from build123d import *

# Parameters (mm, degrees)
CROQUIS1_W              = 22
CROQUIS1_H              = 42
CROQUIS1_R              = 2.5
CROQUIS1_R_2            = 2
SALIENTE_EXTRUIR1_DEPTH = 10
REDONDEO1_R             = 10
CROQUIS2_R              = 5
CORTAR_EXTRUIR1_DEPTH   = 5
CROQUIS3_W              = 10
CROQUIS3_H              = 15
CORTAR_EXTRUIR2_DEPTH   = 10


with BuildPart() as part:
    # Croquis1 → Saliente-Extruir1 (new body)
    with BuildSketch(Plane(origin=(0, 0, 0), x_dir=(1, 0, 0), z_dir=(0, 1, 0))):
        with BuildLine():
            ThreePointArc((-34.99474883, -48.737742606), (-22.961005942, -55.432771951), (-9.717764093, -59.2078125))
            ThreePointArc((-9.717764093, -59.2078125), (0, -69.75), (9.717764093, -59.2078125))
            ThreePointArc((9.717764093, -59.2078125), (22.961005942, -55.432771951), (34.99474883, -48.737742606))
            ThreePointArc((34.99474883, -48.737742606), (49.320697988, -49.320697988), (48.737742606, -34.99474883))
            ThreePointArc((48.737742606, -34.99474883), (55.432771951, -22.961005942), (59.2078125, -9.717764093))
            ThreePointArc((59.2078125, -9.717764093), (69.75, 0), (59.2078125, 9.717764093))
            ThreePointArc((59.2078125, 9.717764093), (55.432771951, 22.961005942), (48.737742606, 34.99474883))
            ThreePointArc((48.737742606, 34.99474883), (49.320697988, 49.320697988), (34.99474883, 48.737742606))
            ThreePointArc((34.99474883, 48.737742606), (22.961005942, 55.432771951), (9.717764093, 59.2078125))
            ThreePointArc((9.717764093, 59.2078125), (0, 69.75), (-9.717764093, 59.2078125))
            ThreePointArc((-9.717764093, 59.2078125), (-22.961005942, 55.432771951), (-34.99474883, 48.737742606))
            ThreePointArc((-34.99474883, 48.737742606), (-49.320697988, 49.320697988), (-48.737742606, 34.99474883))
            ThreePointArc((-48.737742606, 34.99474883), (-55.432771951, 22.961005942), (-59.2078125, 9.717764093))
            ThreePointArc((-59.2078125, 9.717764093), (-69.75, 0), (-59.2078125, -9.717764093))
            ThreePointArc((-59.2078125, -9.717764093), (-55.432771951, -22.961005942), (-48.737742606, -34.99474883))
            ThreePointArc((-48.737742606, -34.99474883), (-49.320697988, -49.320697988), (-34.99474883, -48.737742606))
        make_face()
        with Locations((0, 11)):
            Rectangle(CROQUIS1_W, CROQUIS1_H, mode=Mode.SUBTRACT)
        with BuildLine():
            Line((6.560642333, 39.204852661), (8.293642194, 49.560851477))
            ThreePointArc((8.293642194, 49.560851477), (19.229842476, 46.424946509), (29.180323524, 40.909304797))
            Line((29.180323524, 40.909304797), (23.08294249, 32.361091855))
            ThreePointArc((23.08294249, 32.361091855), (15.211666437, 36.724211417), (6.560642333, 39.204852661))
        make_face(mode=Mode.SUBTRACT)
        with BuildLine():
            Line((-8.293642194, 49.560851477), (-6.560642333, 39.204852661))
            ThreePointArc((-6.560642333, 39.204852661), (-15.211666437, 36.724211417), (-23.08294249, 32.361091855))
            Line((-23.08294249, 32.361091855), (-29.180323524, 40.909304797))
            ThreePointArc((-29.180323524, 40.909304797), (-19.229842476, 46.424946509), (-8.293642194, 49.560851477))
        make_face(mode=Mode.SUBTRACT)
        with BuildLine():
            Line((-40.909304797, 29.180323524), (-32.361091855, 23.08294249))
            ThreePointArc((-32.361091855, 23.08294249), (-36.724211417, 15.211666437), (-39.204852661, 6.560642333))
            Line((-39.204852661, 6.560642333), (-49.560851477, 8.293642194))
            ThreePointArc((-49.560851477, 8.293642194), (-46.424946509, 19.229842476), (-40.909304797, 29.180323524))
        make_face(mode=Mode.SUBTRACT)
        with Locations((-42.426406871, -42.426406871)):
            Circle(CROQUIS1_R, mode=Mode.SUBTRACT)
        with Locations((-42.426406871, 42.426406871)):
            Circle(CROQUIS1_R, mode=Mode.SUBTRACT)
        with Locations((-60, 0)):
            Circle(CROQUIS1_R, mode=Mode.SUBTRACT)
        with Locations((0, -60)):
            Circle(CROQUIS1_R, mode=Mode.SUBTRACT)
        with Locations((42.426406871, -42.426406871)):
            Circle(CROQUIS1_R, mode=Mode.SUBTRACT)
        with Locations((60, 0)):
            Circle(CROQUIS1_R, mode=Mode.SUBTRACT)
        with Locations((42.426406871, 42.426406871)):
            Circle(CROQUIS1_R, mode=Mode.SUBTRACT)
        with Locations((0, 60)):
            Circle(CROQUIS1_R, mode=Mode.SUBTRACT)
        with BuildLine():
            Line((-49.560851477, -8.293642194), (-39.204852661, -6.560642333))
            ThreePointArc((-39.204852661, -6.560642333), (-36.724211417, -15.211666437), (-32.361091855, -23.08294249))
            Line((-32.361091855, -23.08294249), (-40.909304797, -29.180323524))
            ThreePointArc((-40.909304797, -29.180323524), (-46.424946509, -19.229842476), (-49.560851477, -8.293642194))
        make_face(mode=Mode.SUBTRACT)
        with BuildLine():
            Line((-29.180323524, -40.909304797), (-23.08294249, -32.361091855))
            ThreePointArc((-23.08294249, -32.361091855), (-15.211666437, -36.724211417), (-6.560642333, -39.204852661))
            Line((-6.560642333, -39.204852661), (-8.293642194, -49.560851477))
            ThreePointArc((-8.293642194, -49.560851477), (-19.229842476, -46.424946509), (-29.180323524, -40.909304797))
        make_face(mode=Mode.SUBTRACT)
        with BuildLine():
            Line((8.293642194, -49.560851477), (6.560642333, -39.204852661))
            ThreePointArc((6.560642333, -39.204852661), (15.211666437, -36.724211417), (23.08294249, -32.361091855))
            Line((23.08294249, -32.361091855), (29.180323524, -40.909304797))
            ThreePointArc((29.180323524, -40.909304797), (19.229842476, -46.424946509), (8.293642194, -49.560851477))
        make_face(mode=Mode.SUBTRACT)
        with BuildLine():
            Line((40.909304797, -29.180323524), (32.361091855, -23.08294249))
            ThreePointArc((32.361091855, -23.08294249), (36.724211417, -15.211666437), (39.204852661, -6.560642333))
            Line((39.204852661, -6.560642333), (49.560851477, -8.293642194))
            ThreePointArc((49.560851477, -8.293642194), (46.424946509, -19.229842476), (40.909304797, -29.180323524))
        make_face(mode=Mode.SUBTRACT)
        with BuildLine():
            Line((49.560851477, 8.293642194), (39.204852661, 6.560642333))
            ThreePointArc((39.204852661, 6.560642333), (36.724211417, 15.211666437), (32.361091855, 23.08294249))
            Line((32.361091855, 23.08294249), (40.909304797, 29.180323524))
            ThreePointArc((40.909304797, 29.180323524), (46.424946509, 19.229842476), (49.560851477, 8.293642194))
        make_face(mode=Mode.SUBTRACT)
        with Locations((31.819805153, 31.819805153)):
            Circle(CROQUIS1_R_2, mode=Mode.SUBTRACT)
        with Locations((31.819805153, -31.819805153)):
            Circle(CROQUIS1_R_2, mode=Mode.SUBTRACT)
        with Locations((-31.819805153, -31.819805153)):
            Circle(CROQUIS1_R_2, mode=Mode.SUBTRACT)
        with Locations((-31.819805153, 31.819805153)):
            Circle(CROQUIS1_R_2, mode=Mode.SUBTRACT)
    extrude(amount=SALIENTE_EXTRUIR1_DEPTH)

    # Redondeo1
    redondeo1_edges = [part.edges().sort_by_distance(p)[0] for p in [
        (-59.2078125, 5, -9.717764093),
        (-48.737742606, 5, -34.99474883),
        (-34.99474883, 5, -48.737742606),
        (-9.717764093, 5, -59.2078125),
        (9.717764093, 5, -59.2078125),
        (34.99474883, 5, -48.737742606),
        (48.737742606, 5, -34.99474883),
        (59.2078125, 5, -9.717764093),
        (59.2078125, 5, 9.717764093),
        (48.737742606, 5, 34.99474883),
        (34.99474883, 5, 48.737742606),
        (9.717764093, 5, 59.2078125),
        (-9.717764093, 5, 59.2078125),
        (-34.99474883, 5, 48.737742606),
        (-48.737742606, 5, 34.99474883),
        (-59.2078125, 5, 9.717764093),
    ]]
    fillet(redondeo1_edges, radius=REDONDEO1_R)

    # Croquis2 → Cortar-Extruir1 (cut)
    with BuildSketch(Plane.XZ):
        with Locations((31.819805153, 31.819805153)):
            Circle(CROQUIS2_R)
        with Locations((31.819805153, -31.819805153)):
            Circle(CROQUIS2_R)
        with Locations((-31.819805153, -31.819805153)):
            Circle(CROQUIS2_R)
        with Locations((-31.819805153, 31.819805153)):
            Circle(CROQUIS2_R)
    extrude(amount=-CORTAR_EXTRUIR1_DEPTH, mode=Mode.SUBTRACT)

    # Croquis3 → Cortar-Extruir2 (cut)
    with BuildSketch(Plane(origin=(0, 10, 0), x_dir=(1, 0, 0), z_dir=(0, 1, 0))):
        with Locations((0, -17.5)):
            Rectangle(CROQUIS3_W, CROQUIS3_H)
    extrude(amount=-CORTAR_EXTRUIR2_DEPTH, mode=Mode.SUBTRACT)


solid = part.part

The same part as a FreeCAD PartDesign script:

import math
import FreeCAD as App
import Part
import Sketcher
from FreeCAD import Vector
Q = App.Units.Quantity


def edges_at(feature, points):
    """Names of the edges that pass closest to the given points."""
    edges = feature.Shape.Edges
    near = lambda p: min(range(len(edges)), key=lambda i: edges[i].distToShape(Part.Vertex(*p))[0])
    return sorted({f"Edge{near(p) + 1}" for p in points})


def add_polygon(sketch, points):
    """Adds a closed chain of lines whose ends are joined by coincident constraints."""
    first, n = sketch.GeometryCount, len(points)
    for a, b in zip(points, points[1:] + points[:1]):
        sketch.addGeometry(Part.LineSegment(App.Vector(*a, 0), App.Vector(*b, 0)), False)
    for i in range(n):
        sketch.addConstraint(Sketcher.Constraint("Coincident", first + i, 2, first + (i + 1) % n, 1))

doc = App.newDocument("Part")
body = doc.addObject("PartDesign::Body", "Body")

# Sketch on XZ plane
sketch1 = doc.addObject("Sketcher::SketchObject", "Sketch")
body.addObject(sketch1)
sketch1.AttachmentSupport = (doc.XZ_Plane, [""])
sketch1.MapMode = "FlatFace"
sketch1.addGeometry(Part.ArcOfCircle(Part.Circle(Vector(0, 0, 0), Vector(0, 0, 1), 60), math.radians(99.320839), math.radians(125.679161)), False)  # 0
sketch1.addGeometry(Part.ArcOfCircle(Part.Circle(Vector(0, 60, 0), Vector(0, 0, 1), 9.75), math.radians(-4.660419), math.radians(184.660419)), False)  # 1
sketch1.addGeometry(Part.ArcOfCircle(Part.Circle(Vector(0, 0, 0), Vector(0, 0, 1), 60), math.radians(54.320839), math.radians(80.679161)), False)  # 2
sketch1.addGeometry(Part.ArcOfCircle(Part.Circle(Vector(42.426407, 42.426407, 0), Vector(0, 0, 1), 9.75), math.radians(-49.660419), math.radians(139.660419)), False)  # 3
sketch1.addGeometry(Part.ArcOfCircle(Part.Circle(Vector(0, 0, 0), Vector(0, 0, 1), 60), math.radians(9.320839), math.radians(35.679161)), False)  # 4
sketch1.addGeometry(Part.ArcOfCircle(Part.Circle(Vector(60, 0, 0), Vector(0, 0, 1), 9.75), math.radians(-94.660419), math.radians(94.660419)), False)  # 5
sketch1.addGeometry(Part.ArcOfCircle(Part.Circle(Vector(0, 0, 0), Vector(0, 0, 1), 60), math.radians(-35.679161), math.radians(-9.320839)), False)  # 6
sketch1.addGeometry(Part.ArcOfCircle(Part.Circle(Vector(42.426407, -42.426407, 0), Vector(0, 0, 1), 9.75), math.radians(-139.660419), math.radians(49.660419)), False)  # 7
sketch1.addGeometry(Part.ArcOfCircle(Part.Circle(Vector(0, 0, 0), Vector(0, 0, 1), 60), math.radians(-80.679161), math.radians(-54.320839)), False)  # 8
sketch1.addGeometry(Part.ArcOfCircle(Part.Circle(Vector(0, -60, 0), Vector(0, 0, 1), 9.75), math.radians(175.339581), math.radians(364.660419)), False)  # 9
sketch1.addGeometry(Part.ArcOfCircle(Part.Circle(Vector(0, 0, 0), Vector(0, 0, 1), 60), math.radians(-125.679161), math.radians(-99.320839)), False)  # 10
sketch1.addGeometry(Part.ArcOfCircle(Part.Circle(Vector(-42.426407, -42.426407, 0), Vector(0, 0, 1), 9.75), math.radians(130.339581), math.radians(319.660419)), False)  # 11
sketch1.addGeometry(Part.ArcOfCircle(Part.Circle(Vector(0, 0, 0), Vector(0, 0, 1), 60), math.radians(-170.679161), math.radians(-144.320839)), False)  # 12
sketch1.addGeometry(Part.ArcOfCircle(Part.Circle(Vector(-60, 0, 0), Vector(0, 0, 1), 9.75), math.radians(85.339581), math.radians(274.660419)), False)  # 13
sketch1.addGeometry(Part.ArcOfCircle(Part.Circle(Vector(0, 0, 0), Vector(0, 0, 1), 60), math.radians(144.320839), math.radians(170.679161)), False)  # 14
sketch1.addGeometry(Part.ArcOfCircle(Part.Circle(Vector(-42.426407, 42.426407, 0), Vector(0, 0, 1), 9.75), math.radians(40.339581), math.radians(229.660419)), False)  # 15
sketch1.addGeometry(Part.Circle(Vector(-42.426407, 42.426407, 0), Vector(0, 0, 1), 2.5), False)  # 16
sketch1.addGeometry(Part.Circle(Vector(-31.819805, 31.819805, 0), Vector(0, 0, 1), 2), False)  # 17
sketch1.addGeometry(Part.ArcOfCircle(Part.Circle(Vector(0, 0, 0), Vector(0, 0, 1), 50.25), math.radians(99.5), math.radians(125.5)), False)  # 18
sketch1.addGeometry(Part.LineSegment(Vector(-29.180324, 40.909305, 0), Vector(-23.082942, 32.361092, 0)), False)  # 19
sketch1.addGeometry(Part.ArcOfCircle(Part.Circle(Vector(0, 0, 0), Vector(0, 0, 1), 39.75), math.radians(99.5), math.radians(125.5)), False)  # 20
sketch1.addGeometry(Part.LineSegment(Vector(-6.560642, 39.204853, 0), Vector(-8.293642, 49.560851, 0)), False)  # 21
sketch1.addGeometry(Part.ArcOfCircle(Part.Circle(Vector(0, 0, 0), Vector(0, 0, 1), 50.25), math.radians(144.5), math.radians(170.5)), False)  # 22
sketch1.addGeometry(Part.LineSegment(Vector(-49.560851, 8.293642, 0), Vector(-39.204853, 6.560642, 0)), False)  # 23
sketch1.addGeometry(Part.ArcOfCircle(Part.Circle(Vector(0, 0, 0), Vector(0, 0, 1), 39.75), math.radians(144.5), math.radians(170.5)), False)  # 24
sketch1.addGeometry(Part.LineSegment(Vector(-32.361092, 23.082942, 0), Vector(-40.909305, 29.180324, 0)), False)  # 25
sketch1.addGeometry(Part.Circle(Vector(0, 60, 0), Vector(0, 0, 1), 2.5), False)  # 26
sketch1.addGeometry(Part.ArcOfCircle(Part.Circle(Vector(0, 0, 0), Vector(0, 0, 1), 50.25), math.radians(54.5), math.radians(80.5)), False)  # 27
sketch1.addGeometry(Part.LineSegment(Vector(8.293642, 49.560851, 0), Vector(6.560642, 39.204853, 0)), False)  # 28
sketch1.addGeometry(Part.ArcOfCircle(Part.Circle(Vector(0, 0, 0), Vector(0, 0, 1), 39.75), math.radians(54.5), math.radians(80.5)), False)  # 29
sketch1.addGeometry(Part.LineSegment(Vector(23.082942, 32.361092, 0), Vector(29.180324, 40.909305, 0)), False)  # 30
sketch1.addGeometry(Part.Circle(Vector(42.426407, 42.426407, 0), Vector(0, 0, 1), 2.5), False)  # 31
sketch1.addGeometry(Part.Circle(Vector(31.819805, 31.819805, 0), Vector(0, 0, 1), 2), False)  # 32
sketch1.addGeometry(Part.ArcOfCircle(Part.Circle(Vector(0, 0, 0), Vector(0, 0, 1), 50.25), math.radians(9.5), math.radians(35.5)), False)  # 33
sketch1.addGeometry(Part.LineSegment(Vector(40.909305, 29.180324, 0), Vector(32.361092, 23.082942, 0)), False)  # 34
sketch1.addGeometry(Part.ArcOfCircle(Part.Circle(Vector(0, 0, 0), Vector(0, 0, 1), 39.75), math.radians(9.5), math.radians(35.5)), False)  # 35
sketch1.addGeometry(Part.LineSegment(Vector(39.204853, 6.560642, 0), Vector(49.560851, 8.293642, 0)), False)  # 36
sketch1.addGeometry(Part.Circle(Vector(-60, 0, 0), Vector(0, 0, 1), 2.5), False)  # 37
sketch1.addGeometry(Part.ArcOfCircle(Part.Circle(Vector(0, 0, 0), Vector(0, 0, 1), 50.25), math.radians(-170.5), math.radians(-144.5)), False)  # 38
sketch1.addGeometry(Part.LineSegment(Vector(-40.909305, -29.180324, 0), Vector(-32.361092, -23.082942, 0)), False)  # 39
sketch1.addGeometry(Part.ArcOfCircle(Part.Circle(Vector(0, 0, 0), Vector(0, 0, 1), 39.75), math.radians(-170.5), math.radians(-144.5)), False)  # 40
sketch1.addGeometry(Part.LineSegment(Vector(-39.204853, -6.560642, 0), Vector(-49.560851, -8.293642, 0)), False)  # 41
sketch1.addGeometry(Part.Circle(Vector(-31.819805, -31.819805, 0), Vector(0, 0, 1), 2), False)  # 42
sketch1.addGeometry(Part.Circle(Vector(-42.426407, -42.426407, 0), Vector(0, 0, 1), 2.5), False)  # 43
sketch1.addGeometry(Part.ArcOfCircle(Part.Circle(Vector(0, 0, 0), Vector(0, 0, 1), 50.25), math.radians(-125.5), math.radians(-99.5)), False)  # 44
sketch1.addGeometry(Part.LineSegment(Vector(-8.293642, -49.560851, 0), Vector(-6.560642, -39.204853, 0)), False)  # 45
sketch1.addGeometry(Part.ArcOfCircle(Part.Circle(Vector(0, 0, 0), Vector(0, 0, 1), 39.75), math.radians(-125.5), math.radians(-99.5)), False)  # 46
sketch1.addGeometry(Part.LineSegment(Vector(-23.082942, -32.361092, 0), Vector(-29.180324, -40.909305, 0)), False)  # 47
add_polygon(sketch1, [(11, 10), (-11, 10), (-11, -32), (11, -32)])  # lines 48-51
sketch1.addGeometry(Part.Circle(Vector(60, 0, 0), Vector(0, 0, 1), 2.5), False)  # 52
sketch1.addGeometry(Part.ArcOfCircle(Part.Circle(Vector(0, 0, 0), Vector(0, 0, 1), 50.25), math.radians(-35.5), math.radians(-9.5)), False)  # 53
sketch1.addGeometry(Part.LineSegment(Vector(49.560851, -8.293642, 0), Vector(39.204853, -6.560642, 0)), False)  # 54
sketch1.addGeometry(Part.ArcOfCircle(Part.Circle(Vector(0, 0, 0), Vector(0, 0, 1), 39.75), math.radians(-35.5), math.radians(-9.5)), False)  # 55
sketch1.addGeometry(Part.LineSegment(Vector(32.361092, -23.082942, 0), Vector(40.909305, -29.180324, 0)), False)  # 56
sketch1.addGeometry(Part.ArcOfCircle(Part.Circle(Vector(0, 0, 0), Vector(0, 0, 1), 39.75), math.radians(-80.5), math.radians(-54.5)), False)  # 57
sketch1.addGeometry(Part.LineSegment(Vector(6.560642, -39.204853, 0), Vector(8.293642, -49.560851, 0)), False)  # 58
sketch1.addGeometry(Part.ArcOfCircle(Part.Circle(Vector(0, 0, 0), Vector(0, 0, 1), 50.25), math.radians(-80.5), math.radians(-54.5)), False)  # 59
sketch1.addGeometry(Part.LineSegment(Vector(29.180324, -40.909305, 0), Vector(23.082942, -32.361092, 0)), False)  # 60
sketch1.addGeometry(Part.Circle(Vector(0, -60, 0), Vector(0, 0, 1), 2.5), False)  # 61
sketch1.addGeometry(Part.Circle(Vector(31.819805, -31.819805, 0), Vector(0, 0, 1), 2), False)  # 62
sketch1.addGeometry(Part.Circle(Vector(42.426407, -42.426407, 0), Vector(0, 0, 1), 2.5), False)  # 63
sketch1.addConstraint([
    Sketcher.Constraint("Coincident", 0, 1, 1, 2),
    Sketcher.Constraint("Coincident", 1, 1, 2, 2),
    Sketcher.Constraint("Coincident", 2, 1, 3, 2),
    Sketcher.Constraint("Coincident", 3, 1, 4, 2),
    Sketcher.Constraint("Coincident", 4, 1, 5, 2),
    Sketcher.Constraint("Coincident", 5, 1, 6, 2),
    Sketcher.Constraint("Coincident", 6, 1, 7, 2),
    Sketcher.Constraint("Coincident", 7, 1, 8, 2),
    Sketcher.Constraint("Coincident", 8, 1, 9, 2),
    Sketcher.Constraint("Coincident", 9, 1, 10, 2),
    Sketcher.Constraint("Coincident", 10, 1, 11, 2),
    Sketcher.Constraint("Coincident", 11, 1, 12, 2),
    Sketcher.Constraint("Coincident", 12, 1, 13, 2),
    Sketcher.Constraint("Coincident", 13, 1, 14, 2),
    Sketcher.Constraint("Coincident", 14, 1, 15, 2),
    Sketcher.Constraint("Coincident", 15, 1, 0, 2),
    Sketcher.Constraint("Coincident", 18, 2, 19, 1),
    Sketcher.Constraint("Coincident", 19, 2, 20, 2),
    Sketcher.Constraint("Coincident", 20, 1, 21, 1),
    Sketcher.Constraint("Coincident", 21, 2, 18, 1),
    Sketcher.Constraint("Coincident", 22, 2, 23, 1),
    Sketcher.Constraint("Coincident", 23, 2, 24, 2),
    Sketcher.Constraint("Coincident", 24, 1, 25, 1),
    Sketcher.Constraint("Coincident", 25, 2, 22, 1),
    Sketcher.Constraint("Coincident", 27, 2, 28, 1),
    Sketcher.Constraint("Coincident", 28, 2, 29, 2),
    Sketcher.Constraint("Coincident", 29, 1, 30, 1),
    Sketcher.Constraint("Coincident", 30, 2, 27, 1),
    Sketcher.Constraint("Coincident", 33, 2, 34, 1),
    Sketcher.Constraint("Coincident", 34, 2, 35, 2),
    Sketcher.Constraint("Coincident", 35, 1, 36, 1),
    Sketcher.Constraint("Coincident", 36, 2, 33, 1),
    Sketcher.Constraint("Coincident", 38, 2, 39, 1),
    Sketcher.Constraint("Coincident", 39, 2, 40, 2),
    Sketcher.Constraint("Coincident", 40, 1, 41, 1),
    Sketcher.Constraint("Coincident", 41, 2, 38, 1),
    Sketcher.Constraint("Coincident", 44, 2, 45, 1),
    Sketcher.Constraint("Coincident", 45, 2, 46, 2),
    Sketcher.Constraint("Coincident", 46, 1, 47, 1),
    Sketcher.Constraint("Coincident", 47, 2, 44, 1),
    Sketcher.Constraint("Coincident", 53, 2, 54, 1),
    Sketcher.Constraint("Coincident", 54, 2, 55, 2),
    Sketcher.Constraint("Coincident", 55, 1, 56, 1),
    Sketcher.Constraint("Coincident", 56, 2, 53, 1),
    Sketcher.Constraint("Coincident", 57, 1, 58, 1),
    Sketcher.Constraint("Coincident", 58, 2, 59, 1),
    Sketcher.Constraint("Coincident", 59, 2, 60, 1),
    Sketcher.Constraint("Coincident", 60, 2, 57, 2),
    Sketcher.Constraint("Horizontal", 48),
    Sketcher.Constraint("Vertical", 49),
    Sketcher.Constraint("Horizontal", 50),
    Sketcher.Constraint("Vertical", 51),
    Sketcher.Constraint("Coincident", 0, 3, -1, 1),
    Sketcher.Constraint("Coincident", 2, 3, -1, 1),
    Sketcher.Constraint("Coincident", 4, 3, -1, 1),
    Sketcher.Constraint("Coincident", 6, 3, -1, 1),
    Sketcher.Constraint("Coincident", 8, 3, -1, 1),
    Sketcher.Constraint("Coincident", 10, 3, -1, 1),
    Sketcher.Constraint("Coincident", 12, 3, -1, 1),
    Sketcher.Constraint("Coincident", 14, 3, -1, 1),
    Sketcher.Constraint("Coincident", 18, 3, -1, 1),
    Sketcher.Constraint("Coincident", 20, 3, -1, 1),
    Sketcher.Constraint("Coincident", 22, 3, -1, 1),
    Sketcher.Constraint("Coincident", 24, 3, -1, 1),
    Sketcher.Constraint("Coincident", 27, 3, -1, 1),
    Sketcher.Constraint("Coincident", 29, 3, -1, 1),
    Sketcher.Constraint("Coincident", 33, 3, -1, 1),
    Sketcher.Constraint("Coincident", 35, 3, -1, 1),
    Sketcher.Constraint("Coincident", 38, 3, -1, 1),
    Sketcher.Constraint("Coincident", 40, 3, -1, 1),
    Sketcher.Constraint("Coincident", 44, 3, -1, 1),
    Sketcher.Constraint("Coincident", 46, 3, -1, 1),
    Sketcher.Constraint("Coincident", 53, 3, -1, 1),
    Sketcher.Constraint("Coincident", 55, 3, -1, 1),
    Sketcher.Constraint("Coincident", 57, 3, -1, 1),
    Sketcher.Constraint("Coincident", 59, 3, -1, 1),
    Sketcher.Constraint("Coincident", 16, 3, 15, 3),
    Sketcher.Constraint("Coincident", 26, 3, 1, 3),
    Sketcher.Constraint("Coincident", 31, 3, 3, 3),
    Sketcher.Constraint("Coincident", 37, 3, 13, 3),
    Sketcher.Constraint("Coincident", 43, 3, 11, 3),
    Sketcher.Constraint("Coincident", 52, 3, 5, 3),
    Sketcher.Constraint("Coincident", 61, 3, 9, 3),
    Sketcher.Constraint("Coincident", 63, 3, 7, 3),
    Sketcher.Constraint("Equal", 0, 2),
    Sketcher.Constraint("Equal", 1, 3),
    Sketcher.Constraint("Equal", 2, 4),
    Sketcher.Constraint("Equal", 3, 5),
    Sketcher.Constraint("Equal", 4, 6),
    Sketcher.Constraint("Equal", 5, 7),
    Sketcher.Constraint("Equal", 6, 8),
    Sketcher.Constraint("Equal", 7, 9),
    Sketcher.Constraint("Equal", 8, 10),
    Sketcher.Constraint("Equal", 9, 11),
    Sketcher.Constraint("Equal", 10, 12),
    Sketcher.Constraint("Equal", 11, 13),
    Sketcher.Constraint("Equal", 12, 14),
    Sketcher.Constraint("Equal", 13, 15),
    Sketcher.Constraint("Equal", 18, 22),
    Sketcher.Constraint("Equal", 20, 24),
    Sketcher.Constraint("Equal", 16, 26),
    Sketcher.Constraint("Equal", 22, 27),
    Sketcher.Constraint("Equal", 24, 29),
    Sketcher.Constraint("Equal", 26, 31),
    Sketcher.Constraint("Equal", 17, 32),
    Sketcher.Constraint("Equal", 27, 33),
    Sketcher.Constraint("Equal", 29, 35),
    Sketcher.Constraint("Equal", 31, 37),
    Sketcher.Constraint("Equal", 33, 38),
    Sketcher.Constraint("Equal", 35, 40),
    Sketcher.Constraint("Equal", 32, 42),
    Sketcher.Constraint("Equal", 37, 43),
    Sketcher.Constraint("Equal", 38, 44),
    Sketcher.Constraint("Equal", 40, 46),
    Sketcher.Constraint("Equal", 43, 52),
    Sketcher.Constraint("Equal", 44, 53),
    Sketcher.Constraint("Equal", 46, 55),
    Sketcher.Constraint("Equal", 55, 57),
    Sketcher.Constraint("Equal", 53, 59),
    Sketcher.Constraint("Equal", 52, 61),
    Sketcher.Constraint("Equal", 42, 62),
    Sketcher.Constraint("Equal", 61, 63),
    Sketcher.Constraint("Symmetric", 1, 3, 9, 3, -1, 1),
    Sketcher.Constraint("Symmetric", 3, 3, 11, 3, -1, 1),
    Sketcher.Constraint("Symmetric", 5, 3, 13, 3, -1, 1),
    Sketcher.Constraint("Symmetric", 7, 3, 15, 3, -1, 1),
    Sketcher.Constraint("Symmetric", 32, 3, 42, 3, -1, 1),
    Sketcher.Constraint("Symmetric", 17, 3, 62, 3, -1, 1),
    Sketcher.Constraint("Symmetric", 7, 3, 11, 3, -2),
    Sketcher.Constraint("Symmetric", 17, 3, 32, 3, -2),
    Sketcher.Constraint("PointOnObject", 1, 3, -2),
    Sketcher.Constraint("PointOnObject", 5, 3, -1),
    Sketcher.Constraint("Perpendicular", 23, 28),
    Sketcher.Constraint("Perpendicular", 25, 30),
    Sketcher.Constraint("Perpendicular", 19, 34),
    Sketcher.Constraint("Perpendicular", 21, 36),
    Sketcher.Constraint("Parallel", 34, 39),
    Sketcher.Constraint("Parallel", 36, 41),
    Sketcher.Constraint("Parallel", 28, 45),
    Sketcher.Constraint("Parallel", 30, 47),
    Sketcher.Constraint("Perpendicular", 45, 54),
    Sketcher.Constraint("Perpendicular", 47, 56),
    Sketcher.Constraint("Perpendicular", 41, 58),
    Sketcher.Constraint("Perpendicular", 39, 60),
    Sketcher.Constraint("Horizontal", 21, 2, 27, 2),
    Sketcher.Constraint("Horizontal", 20, 1, 28, 2),
    Sketcher.Constraint("Horizontal", 19, 2, 29, 1),
    Sketcher.Constraint("Horizontal", 18, 2, 30, 2),
    Sketcher.Constraint("Horizontal", 25, 2, 33, 2),
    Sketcher.Constraint("Horizontal", 23, 2, 35, 1),
    Sketcher.Constraint("Horizontal", 41, 2, 53, 2),
    Sketcher.Constraint("Horizontal", 39, 2, 55, 1),
    Sketcher.Constraint("Horizontal", 45, 2, 57, 1),
    Sketcher.Constraint("Horizontal", 47, 2, 59, 2),
    Sketcher.Constraint("Vertical", 25, 2, 38, 2),
    Sketcher.Constraint("Vertical", 23, 2, 40, 1),
    Sketcher.Constraint("Vertical", 21, 2, 44, 2),
    Sketcher.Constraint("Vertical", 19, 2, 46, 1),
    Sketcher.Constraint("Diameter", 16, Q("5 mm")),
    Sketcher.Constraint("Diameter", 17, Q("4 mm")),
    Sketcher.Constraint("Radius", 0, Q("60 mm")),
    Sketcher.Constraint("DistanceX", 48, 2, 48, 1, Q("22 mm")),
    Sketcher.Constraint("DistanceY", 49, 2, 49, 1, Q("42 mm")),
    Sketcher.Constraint("Radius", 1, Q("9.75 mm")),
    Sketcher.Constraint("Radius", 18, Q("50.25 mm")),
    Sketcher.Constraint("Radius", 20, Q("39.75 mm")),
    Sketcher.Constraint("DistanceY", -1, 1, 1, 3, Q("60 mm")),
    Sketcher.Constraint("DistanceX", -1, 1, 5, 3, Q("60 mm")),
    Sketcher.Constraint("DistanceX", 48, 2, -1, 1, Q("11 mm")),
    Sketcher.Constraint("DistanceY", -1, 1, 48, 2, Q("10 mm")),
    Sketcher.Constraint("Angle", 19, Q("-54.5 deg")),
    Sketcher.Constraint("Angle", 21, Q("99.5 deg")),
    Sketcher.Constraint("DistanceX", -1, 1, 2, 1, Q("34.994749 mm")),
    Sketcher.Constraint("DistanceY", -1, 1, 3, 1, Q("34.994749 mm")),
    Sketcher.Constraint("DistanceY", -1, 1, 19, 2, Q("32.361092 mm")),
    Sketcher.Constraint("DistanceY", -1, 1, 21, 2, Q("49.560851 mm")),
    Sketcher.Constraint("DistanceX", 22, 2, -1, 1, Q("49.560851 mm")),
    Sketcher.Constraint("DistanceX", 24, 1, -1, 1, Q("32.361092 mm")),
    Sketcher.Constraint("DistanceX", 17, 3, -1, 1, Q("31.819805 mm")),
    Sketcher.Constraint("DistanceY", -1, 1, 17, 3, Q("31.819805 mm")),
])
pad1 = doc.addObject("PartDesign::Pad", "Pad")
body.addObject(pad1)
pad1.Profile = sketch1
pad1.Length = 10
pad1.Reversed = True
doc.recompute()

fillet = doc.addObject("PartDesign::Fillet", "Fillet")
body.addObject(fillet)
fillet.Base = (pad1, edges_at(pad1, [
    (-59.208, 5, -9.718),
    (-48.738, 5, -34.995),
    (-34.995, 5, -48.738),
    (-9.718, 5, -59.208),
    (9.718, 5, -59.208),
    (34.995, 5, -48.738),
    (48.738, 5, -34.995),
    (59.208, 5, -9.718),
    (59.208, 5, 9.718),
    (48.738, 5, 34.995),
    (34.995, 5, 48.738),
    (9.718, 5, 59.208),
    (-9.718, 5, 59.208),
    (-34.995, 5, 48.738),
    (-48.738, 5, 34.995),
    (-59.208, 5, 9.718),
]))
fillet.Radius = 10

# Sketch on XZ plane
sketch2 = doc.addObject("Sketcher::SketchObject", "Sketch001")
body.addObject(sketch2)
sketch2.AttachmentSupport = (doc.XZ_Plane, [""])
sketch2.MapMode = "FlatFace"
sketch2.addGeometry([
    Part.Circle(Vector(31.819805, 31.819805, 0), Vector(0, 0, 1), 5),
    Part.Circle(Vector(31.819805, -31.819805, 0), Vector(0, 0, 1), 5),
    Part.Circle(Vector(-31.819805, -31.819805, 0), Vector(0, 0, 1), 5),
    Part.Circle(Vector(-31.819805, 31.819805, 0), Vector(0, 0, 1), 5),
], False)
sketch2.addConstraint([
    Sketcher.Constraint("Equal", 0, 1),
    Sketcher.Constraint("Equal", 1, 2),
    Sketcher.Constraint("Equal", 2, 3),
    Sketcher.Constraint("Symmetric", 0, 3, 2, 3, -1, 1),
    Sketcher.Constraint("Symmetric", 1, 3, 3, 3, -1, 1),
    Sketcher.Constraint("Symmetric", 1, 3, 2, 3, -2),
    Sketcher.Constraint("Diameter", 0, Q("10 mm")),
    Sketcher.Constraint("DistanceY", 1, 3, 0, 3, Q("63.63961 mm")),
    Sketcher.Constraint("DistanceX", 2, 3, 1, 3, Q("63.63961 mm")),
])
pocket1 = doc.addObject("PartDesign::Pocket", "Pocket")
body.addObject(pocket1)
pocket1.Profile = sketch2
pocket1.Length = 5

# Sketch on XZ plane
sketch3 = doc.addObject("Sketcher::SketchObject", "Sketch002")
body.addObject(sketch3)
sketch3.AttachmentSupport = (doc.XZ_Plane, [""])
sketch3.MapMode = "FlatFace"
sketch3.AttachmentOffset = App.Placement(Vector(0, 0, -10), App.Rotation())
add_polygon(sketch3, [(-5, 10), (-5, 25), (5, 25), (5, 10)])  # lines 0-3
sketch3.addConstraint([
    Sketcher.Constraint("Vertical", 0),
    Sketcher.Constraint("Horizontal", 1),
    Sketcher.Constraint("Vertical", 2),
    Sketcher.Constraint("Horizontal", 3),
    Sketcher.Constraint("DistanceX", 1, 1, 1, 2, Q("10 mm")),
    Sketcher.Constraint("DistanceY", 0, 1, 0, 2, Q("15 mm")),
    Sketcher.Constraint("DistanceX", 0, 2, -1, 1, Q("5 mm")),
    Sketcher.Constraint("DistanceY", -1, 1, 0, 2, Q("25 mm")),
])
pocket2 = doc.addObject("PartDesign::Pocket", "Pocket001")
body.addObject(pocket2)
pocket2.Profile = sketch3
pocket2.Length = 10
pocket2.Reversed = True

doc.recompute()
